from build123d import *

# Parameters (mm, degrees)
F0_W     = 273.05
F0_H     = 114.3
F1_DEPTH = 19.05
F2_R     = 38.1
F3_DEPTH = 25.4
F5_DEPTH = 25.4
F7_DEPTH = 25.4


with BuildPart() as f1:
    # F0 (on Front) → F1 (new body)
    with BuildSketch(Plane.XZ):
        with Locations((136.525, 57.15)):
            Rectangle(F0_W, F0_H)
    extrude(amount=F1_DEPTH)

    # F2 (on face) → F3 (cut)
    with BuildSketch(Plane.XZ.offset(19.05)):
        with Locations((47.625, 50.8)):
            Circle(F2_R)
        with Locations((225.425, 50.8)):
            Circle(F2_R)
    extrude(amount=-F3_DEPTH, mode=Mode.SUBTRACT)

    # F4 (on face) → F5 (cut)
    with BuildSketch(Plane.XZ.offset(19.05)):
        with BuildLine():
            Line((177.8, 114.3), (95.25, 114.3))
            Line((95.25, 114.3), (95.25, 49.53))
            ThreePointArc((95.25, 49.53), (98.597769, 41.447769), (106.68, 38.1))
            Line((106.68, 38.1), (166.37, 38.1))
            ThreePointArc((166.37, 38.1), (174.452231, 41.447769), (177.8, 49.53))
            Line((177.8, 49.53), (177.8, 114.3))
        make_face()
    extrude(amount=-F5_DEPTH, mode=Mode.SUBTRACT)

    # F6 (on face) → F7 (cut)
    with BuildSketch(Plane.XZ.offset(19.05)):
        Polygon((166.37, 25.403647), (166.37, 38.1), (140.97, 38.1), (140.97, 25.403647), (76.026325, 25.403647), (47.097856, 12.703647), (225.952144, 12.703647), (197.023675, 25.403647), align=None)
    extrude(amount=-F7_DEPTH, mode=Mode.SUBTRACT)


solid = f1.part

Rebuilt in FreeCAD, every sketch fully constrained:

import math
import FreeCAD as App
import Part
import Sketcher

V = App.Vector
Q = App.Units.Quantity

doc = App.newDocument("Part")
body = doc.addObject("PartDesign::Body", "Body")

# Sketch on XZ plane
sketch1 = body.newObject("Sketcher::SketchObject", "Sketch")
sketch1.AttachmentSupport = (doc.getObject("XZ_Plane"), [""])
sketch1.MapMode = "FlatFace"
sketch1.addGeometry([
    Part.LineSegment(V(0, 114, 0), V(0, 0, 0)),
    Part.LineSegment(V(0, 0, 0), V(273, 0, 0)),
    Part.LineSegment(V(273, 0, 0), V(273, 114, 0)),
    Part.LineSegment(V(273, 114, 0), V(0, 114, 0)),
], False)
sketch1.addConstraint([
    Sketcher.Constraint("Coincident", 0, 2, 1, 1),
    Sketcher.Constraint("Coincident", 1, 2, 2, 1),
    Sketcher.Constraint("Coincident", 2, 2, 3, 1),
    Sketcher.Constraint("Coincident", 3, 2, 0, 1),
    Sketcher.Constraint("Vertical", 0),
    Sketcher.Constraint("Horizontal", 1),
    Sketcher.Constraint("Vertical", 2),
    Sketcher.Constraint("Horizontal", 3),
    Sketcher.Constraint("Coincident", 0, 2, -1, 1),
    Sketcher.Constraint("DistanceY", 0, 2, 0, 1, Q("4.5 in")),
    Sketcher.Constraint("DistanceX", 1, 1, 1, 2, Q("10.75 in")),
])
pad1 = body.newObject("PartDesign::Pad", "Pad")
pad1.Profile = sketch1
pad1.Length = Q("0.75 in")

# Sketch on XZ plane
sketch2 = body.newObject("Sketcher::SketchObject", "Sketch001")
sketch2.AttachmentSupport = (doc.getObject("XZ_Plane"), [""])
sketch2.MapMode = "FlatFace"
sketch2.AttachmentOffset = App.Placement(V(0, 0, 0.75 * 25.4), App.Rotation())
sketch2.addGeometry([
    Part.Circle(V(48, 51, 0), V(0, 0, 1), 38),
    Part.Circle(V(225, 51, 0), V(0, 0, 1), 38),
], False)
sketch2.addConstraint([
    Sketcher.Constraint("Equal", 0, 1),
    Sketcher.Constraint("Horizontal", 0, 3, 1, 3),
    Sketcher.Constraint("Diameter", 0, Q("3 in")),
    Sketcher.Constraint("DistanceY", -1, 1, 0, 3, Q("2 in")),
    Sketcher.Constraint("DistanceX", 0, 3, 1, 3, Q("7 in")),
    Sketcher.Constraint("DistanceX", -1, 1, 0, 3, Q("1.875 in")),
])
pocket1 = body.newObject("PartDesign::Pocket", "Pocket")
pocket1.Profile = sketch2
pocket1.Length = Q("1 in")

# Sketch on XZ plane
sketch3 = body.newObject("Sketcher::SketchObject", "Sketch002")
sketch3.AttachmentSupport = (doc.getObject("XZ_Plane"), [""])
sketch3.MapMode = "FlatFace"
sketch3.AttachmentOffset = App.Placement(V(0, 0, 0.75 * 25.4), App.Rotation())
sketch3.addGeometry([
    Part.LineSegment(V(178, 114, 0), V(95, 114, 0)),  # 0
    Part.LineSegment(V(95, 114, 0), V(95, 50, 0)),  # 1
    Part.ArcOfCircle(Part.Circle(V(107, 50, 0), V(0, 0, 1), 11), math.radians(180), math.radians(270)),  # 2
    Part.LineSegment(V(107, 38, 0), V(166, 38, 0)),  # 3
    Part.ArcOfCircle(Part.Circle(V(166, 50, 0), V(0, 0, 1), 11), math.radians(-90), math.radians(0)),  # 4
    Part.LineSegment(V(178, 50, 0), V(178, 114, 0)),  # 5
], False)
sketch3.addConstraint([
    Sketcher.Constraint("Coincident", 0, 2, 1, 1),
    Sketcher.Constraint("Tangent", 1, 2, 2, 1),
    Sketcher.Constraint("Tangent", 2, 2, 3, 1),
    Sketcher.Constraint("Tangent", 3, 2, 4, 1),
    Sketcher.Constraint("Tangent", 4, 2, 5, 1),
    Sketcher.Constraint("Coincident", 5, 2, 0, 1),
    Sketcher.Constraint("Horizontal", 0),
    Sketcher.Constraint("Vertical", 1),
    Sketcher.Constraint("Horizontal", 3),
    Sketcher.Constraint("Vertical", 5),
    Sketcher.Constraint("Equal", 2, 4),
    Sketcher.Constraint("Radius", 2, Q("0.4499999 in")),
    Sketcher.Constraint("DistanceX", -1, 1, 4, 2, Q("7 in")),
    Sketcher.Constraint("DistanceY", 2, 2, 0, 2, Q("3 in")),
    Sketcher.Constraint("DistanceX", 0, 2, 0, 1, Q("3.25 in")),
    Sketcher.Constraint("DistanceY", -1, 1, 0, 2, Q("4.5 in")),
])
pocket2 = body.newObject("PartDesign::Pocket", "Pocket001")
pocket2.Profile = sketch3
pocket2.Length = Q("1 in")

# Sketch on XZ plane
sketch4 = body.newObject("Sketcher::SketchObject", "Sketch003")
sketch4.AttachmentSupport = (doc.getObject("XZ_Plane"), [""])
sketch4.MapMode = "FlatFace"
sketch4.AttachmentOffset = App.Placement(V(0, 0, 0.75 * 25.4), App.Rotation())
sketch4.addGeometry([
    Part.LineSegment(V(166, 25, 0), V(166, 38, 0)),  # 0
    Part.LineSegment(V(166, 38, 0), V(141, 38, 0)),  # 1
    Part.LineSegment(V(141, 38, 0), V(141, 25, 0)),  # 2
    Part.LineSegment(V(141, 25, 0), V(76, 25, 0)),  # 3
    Part.LineSegment(V(76, 25, 0), V(47, 13, 0)),  # 4
    Part.LineSegment(V(47, 13, 0), V(226, 13, 0)),  # 5
    Part.LineSegment(V(226, 13, 0), V(197, 25, 0)),  # 6
    Part.LineSegment(V(197, 25, 0), V(166, 25, 0)),  # 7
], False)
sketch4.addConstraint([
    Sketcher.Constraint("Coincident", 0, 2, 1, 1),
    Sketcher.Constraint("Coincident", 1, 2, 2, 1),
    Sketcher.Constraint("Coincident", 2, 2, 3, 1),
    Sketcher.Constraint("Coincident", 3, 2, 4, 1),
    Sketcher.Constraint("Coincident", 4, 2, 5, 1),
    Sketcher.Constraint("Coincident", 5, 2, 6, 1),
    Sketcher.Constraint("Coincident", 6, 2, 7, 1),
    Sketcher.Constraint("Coincident", 7, 2, 0, 1),
    Sketcher.Constraint("Vertical", 0),
    Sketcher.Constraint("Horizontal", 1),
    Sketcher.Constraint("Vertical", 2),
    Sketcher.Constraint("Horizontal", 3),
    Sketcher.Constraint("Horizontal", 5),
    Sketcher.Constraint("Horizontal", 7),
    Sketcher.Constraint("Horizontal", 3, 2, 6, 2),
    Sketcher.Constraint("Equal", 4, 6),
    Sketcher.Constraint("DistanceX", 1, 2, 1, 1, Q("1 in")),
    Sketcher.Constraint("DistanceY", -1, 1, 0, 2, Q("1.5 in")),
    Sketcher.Constraint("DistanceY", 4, 2, 3, 2, Q("0.5 in")),
    Sketcher.Constraint("DistanceX", -1, 1, 0, 2, Q("6.55 in")),
    Sketcher.Constraint("DistanceX", 5, 1, 5, 2, Q("178.854288 mm")),
    Sketcher.Constraint("DistanceX", 3, 2, 3, 1, Q("64.943675 mm")),
    Sketcher.Constraint("DistanceX", 7, 2, 7, 1, Q("30.653675 mm")),
    Sketcher.Constraint("DistanceY", 0, 1, 0, 2, Q("12.696353 mm")),
])
pocket3 = body.newObject("PartDesign::Pocket", "Pocket002")
pocket3.Profile = sketch4
pocket3.Length = Q("1 in")

doc.recompute()
